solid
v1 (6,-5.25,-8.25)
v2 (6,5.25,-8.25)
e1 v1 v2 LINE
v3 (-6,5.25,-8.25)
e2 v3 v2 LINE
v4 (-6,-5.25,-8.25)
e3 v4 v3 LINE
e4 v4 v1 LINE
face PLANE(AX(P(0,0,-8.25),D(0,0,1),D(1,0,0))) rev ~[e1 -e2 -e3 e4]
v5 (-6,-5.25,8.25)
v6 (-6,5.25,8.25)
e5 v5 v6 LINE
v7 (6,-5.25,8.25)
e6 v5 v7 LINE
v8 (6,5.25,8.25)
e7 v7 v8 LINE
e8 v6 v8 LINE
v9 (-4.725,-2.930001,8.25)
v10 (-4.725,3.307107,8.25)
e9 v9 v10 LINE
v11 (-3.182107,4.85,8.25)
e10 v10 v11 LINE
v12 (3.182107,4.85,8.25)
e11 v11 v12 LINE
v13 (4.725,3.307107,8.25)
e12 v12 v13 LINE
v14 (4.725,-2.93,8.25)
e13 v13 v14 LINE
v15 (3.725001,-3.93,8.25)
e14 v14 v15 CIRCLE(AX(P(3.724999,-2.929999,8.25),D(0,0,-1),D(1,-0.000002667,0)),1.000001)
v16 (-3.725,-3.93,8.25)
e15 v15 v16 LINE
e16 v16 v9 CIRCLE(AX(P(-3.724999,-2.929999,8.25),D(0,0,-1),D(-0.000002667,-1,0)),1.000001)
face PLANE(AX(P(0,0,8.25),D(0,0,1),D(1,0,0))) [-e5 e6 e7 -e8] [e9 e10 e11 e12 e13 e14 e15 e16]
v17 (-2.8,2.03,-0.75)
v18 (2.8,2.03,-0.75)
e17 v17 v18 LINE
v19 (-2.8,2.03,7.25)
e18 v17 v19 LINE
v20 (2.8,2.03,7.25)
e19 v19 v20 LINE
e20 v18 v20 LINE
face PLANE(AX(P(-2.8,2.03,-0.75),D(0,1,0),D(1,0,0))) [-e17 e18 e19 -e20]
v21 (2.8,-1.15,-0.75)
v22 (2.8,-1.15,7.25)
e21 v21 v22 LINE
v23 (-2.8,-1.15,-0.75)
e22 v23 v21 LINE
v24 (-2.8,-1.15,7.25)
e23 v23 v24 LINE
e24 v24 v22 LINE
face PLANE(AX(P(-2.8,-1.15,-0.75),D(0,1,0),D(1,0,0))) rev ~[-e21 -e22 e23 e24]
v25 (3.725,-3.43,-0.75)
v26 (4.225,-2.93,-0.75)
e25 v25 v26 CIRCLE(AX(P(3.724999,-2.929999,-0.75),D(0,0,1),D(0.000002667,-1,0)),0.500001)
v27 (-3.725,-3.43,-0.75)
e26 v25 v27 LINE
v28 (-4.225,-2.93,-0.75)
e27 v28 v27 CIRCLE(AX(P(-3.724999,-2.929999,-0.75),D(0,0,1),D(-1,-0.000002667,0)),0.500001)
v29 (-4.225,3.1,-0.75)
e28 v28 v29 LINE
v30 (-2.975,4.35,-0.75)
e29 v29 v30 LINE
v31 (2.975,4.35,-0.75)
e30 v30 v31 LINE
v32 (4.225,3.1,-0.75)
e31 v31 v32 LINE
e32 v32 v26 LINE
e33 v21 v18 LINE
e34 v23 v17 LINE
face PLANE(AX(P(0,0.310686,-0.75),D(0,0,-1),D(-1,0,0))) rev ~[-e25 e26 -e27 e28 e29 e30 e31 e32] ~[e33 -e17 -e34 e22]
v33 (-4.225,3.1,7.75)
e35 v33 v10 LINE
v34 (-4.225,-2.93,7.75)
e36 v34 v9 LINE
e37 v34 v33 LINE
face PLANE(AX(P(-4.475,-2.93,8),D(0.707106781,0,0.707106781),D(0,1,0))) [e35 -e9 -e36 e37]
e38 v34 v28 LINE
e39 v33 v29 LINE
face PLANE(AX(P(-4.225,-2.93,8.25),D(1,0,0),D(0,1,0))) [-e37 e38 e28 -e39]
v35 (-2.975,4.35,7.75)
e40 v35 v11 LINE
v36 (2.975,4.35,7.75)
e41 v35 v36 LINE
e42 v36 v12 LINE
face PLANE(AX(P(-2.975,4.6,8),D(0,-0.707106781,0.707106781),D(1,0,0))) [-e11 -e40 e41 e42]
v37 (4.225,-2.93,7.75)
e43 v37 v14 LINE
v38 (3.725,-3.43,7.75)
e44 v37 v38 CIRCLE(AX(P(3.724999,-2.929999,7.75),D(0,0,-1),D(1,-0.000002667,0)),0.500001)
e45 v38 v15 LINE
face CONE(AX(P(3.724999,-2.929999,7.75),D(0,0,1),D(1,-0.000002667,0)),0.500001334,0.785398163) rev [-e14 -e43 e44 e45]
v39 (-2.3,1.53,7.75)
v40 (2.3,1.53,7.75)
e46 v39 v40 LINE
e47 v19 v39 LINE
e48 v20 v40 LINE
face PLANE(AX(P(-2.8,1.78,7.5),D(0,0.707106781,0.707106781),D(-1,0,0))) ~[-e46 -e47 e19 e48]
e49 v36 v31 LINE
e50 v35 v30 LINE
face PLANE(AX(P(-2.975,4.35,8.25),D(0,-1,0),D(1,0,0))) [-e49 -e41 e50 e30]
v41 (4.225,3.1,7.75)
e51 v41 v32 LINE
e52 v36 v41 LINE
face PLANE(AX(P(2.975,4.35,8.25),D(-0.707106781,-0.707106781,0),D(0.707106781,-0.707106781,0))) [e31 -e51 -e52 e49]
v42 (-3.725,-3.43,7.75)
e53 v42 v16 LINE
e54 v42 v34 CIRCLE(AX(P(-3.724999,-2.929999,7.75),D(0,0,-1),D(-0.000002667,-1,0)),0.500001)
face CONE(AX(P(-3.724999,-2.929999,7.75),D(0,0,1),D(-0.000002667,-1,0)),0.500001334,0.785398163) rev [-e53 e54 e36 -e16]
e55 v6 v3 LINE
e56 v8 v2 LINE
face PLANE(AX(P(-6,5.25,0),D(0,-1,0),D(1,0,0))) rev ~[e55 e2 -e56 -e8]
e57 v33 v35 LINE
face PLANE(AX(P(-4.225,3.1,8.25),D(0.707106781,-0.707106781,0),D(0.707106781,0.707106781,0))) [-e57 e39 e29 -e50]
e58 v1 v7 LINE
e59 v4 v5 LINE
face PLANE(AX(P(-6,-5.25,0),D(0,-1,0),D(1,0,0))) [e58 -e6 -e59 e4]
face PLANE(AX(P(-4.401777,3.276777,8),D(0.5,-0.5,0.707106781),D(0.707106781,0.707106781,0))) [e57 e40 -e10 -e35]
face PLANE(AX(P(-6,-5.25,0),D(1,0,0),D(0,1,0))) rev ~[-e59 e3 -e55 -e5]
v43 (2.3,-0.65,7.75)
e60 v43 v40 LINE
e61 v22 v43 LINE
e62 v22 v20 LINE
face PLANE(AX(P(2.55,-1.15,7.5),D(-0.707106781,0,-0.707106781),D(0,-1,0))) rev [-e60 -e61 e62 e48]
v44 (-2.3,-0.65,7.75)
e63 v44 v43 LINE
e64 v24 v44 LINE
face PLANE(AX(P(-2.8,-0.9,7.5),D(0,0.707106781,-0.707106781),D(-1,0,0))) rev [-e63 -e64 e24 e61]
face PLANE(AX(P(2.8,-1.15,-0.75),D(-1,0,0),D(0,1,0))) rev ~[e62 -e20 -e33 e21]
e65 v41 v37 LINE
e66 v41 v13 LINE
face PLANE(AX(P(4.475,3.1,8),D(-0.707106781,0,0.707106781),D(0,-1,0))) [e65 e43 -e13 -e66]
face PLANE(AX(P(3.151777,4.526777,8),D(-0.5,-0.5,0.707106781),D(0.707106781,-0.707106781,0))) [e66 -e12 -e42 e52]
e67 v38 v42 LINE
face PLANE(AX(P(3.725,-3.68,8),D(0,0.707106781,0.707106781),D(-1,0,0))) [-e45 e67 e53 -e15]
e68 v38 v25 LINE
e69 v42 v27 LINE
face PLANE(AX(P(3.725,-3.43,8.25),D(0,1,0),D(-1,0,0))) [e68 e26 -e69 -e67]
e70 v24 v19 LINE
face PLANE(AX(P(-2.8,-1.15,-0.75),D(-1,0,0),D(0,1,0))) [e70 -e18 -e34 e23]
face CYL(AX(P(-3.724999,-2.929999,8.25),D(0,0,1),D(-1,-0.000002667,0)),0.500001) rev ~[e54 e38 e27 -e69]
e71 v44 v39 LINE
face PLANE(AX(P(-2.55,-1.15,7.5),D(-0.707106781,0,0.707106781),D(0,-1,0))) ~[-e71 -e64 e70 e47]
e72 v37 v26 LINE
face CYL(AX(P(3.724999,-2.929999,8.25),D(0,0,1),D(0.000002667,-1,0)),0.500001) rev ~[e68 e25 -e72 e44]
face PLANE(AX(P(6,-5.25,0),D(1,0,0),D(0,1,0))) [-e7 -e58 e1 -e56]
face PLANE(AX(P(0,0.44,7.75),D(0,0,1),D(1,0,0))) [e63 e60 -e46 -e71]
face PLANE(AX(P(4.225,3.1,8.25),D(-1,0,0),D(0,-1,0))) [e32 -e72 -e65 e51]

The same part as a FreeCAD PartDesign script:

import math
import FreeCAD as App
import Part
import Sketcher


def edges_at(feature, points):
    """Names of the edges that pass closest to the given points."""
    edges = feature.Shape.Edges
    near = lambda p: min(range(len(edges)), key=lambda i: edges[i].distToShape(Part.Vertex(*p))[0])
    return sorted({f"Edge{near(p) + 1}" for p in points})

doc = App.newDocument("Part")
params = doc.addObject("Spreadsheet::Sheet", "Params")
for row, (alias, value) in enumerate([
    ("sketch1_width", "12 mm"),
    ("sketch1_height", "10.5 mm"),
    ("pad1_length", "16.5 mm"),
    ("sketch2_radius", "0.500001 mm"),
    ("sketch2_width", "7.45 mm"),
    ("sketch2_width2", "5.95 mm"),
    ("sketch2_height", "6.03 mm"),
    ("pocket1_length", "9 mm"),
    ("sketch3_width", "5.6 mm"),
    ("sketch3_height", "3.18 mm"),
    ("pad2_length", "8.5 mm"),
    ("chamfer_size", "0.5 mm"),
    ("chamfer2_size", "0.5 mm"),
], start=1):
    params.set(f"A{row}", alias)
    params.set(f"B{row}", "=" + value)
    params.setAlias(f"B{row}", alias)

body = doc.addObject("PartDesign::Body", "Body")

sketch1 = body.newObject("Sketcher::SketchObject", "Sketch")
sketch1.AttachmentSupport = (doc.getObject("XY_Plane"), [""])
sketch1.MapMode = "FlatFace"
sketch1.addGeometry(Part.LineSegment(App.Vector(-6, 5, 0), App.Vector(-6, -5, 0)), False)
sketch1.addGeometry(Part.LineSegment(App.Vector(-6, -5, 0), App.Vector(6, -5, 0)), False)
sketch1.addGeometry(Part.LineSegment(App.Vector(6, -5, 0), App.Vector(6, 5, 0)), False)
sketch1.addGeometry(Part.LineSegment(App.Vector(6, 5, 0), App.Vector(-6, 5, 0)), False)
sketch1.addConstraint(Sketcher.Constraint("Coincident", 0, 2, 1, 1))
sketch1.addConstraint(Sketcher.Constraint("Coincident", 1, 2, 2, 1))
sketch1.addConstraint(Sketcher.Constraint("Coincident", 2, 2, 3, 1))
sketch1.addConstraint(Sketcher.Constraint("Coincident", 3, 2, 0, 1))
sketch1.addConstraint(Sketcher.Constraint("Vertical", 0))
sketch1.addConstraint(Sketcher.Constraint("Horizontal", 1))
sketch1.addConstraint(Sketcher.Constraint("Vertical", 2))
sketch1.addConstraint(Sketcher.Constraint("Horizontal", 3))
sketch1.addConstraint(Sketcher.Constraint("Symmetric", 0, 2, 2, 2, -1, 1))
sketch1.addConstraint(Sketcher.Constraint("DistanceX", 1, 1, 1, 2, 12.0))
sketch1.addConstraint(Sketcher.Constraint("DistanceY", 0, 2, 0, 1, 10.5))
sketch1.setExpression("Constraints[9]", "Params.sketch1_width")
sketch1.setExpression("Constraints[10]", "Params.sketch1_height")
pad1 = body.newObject("PartDesign::Pad", "Pad")
pad1.Profile = sketch1
pad1.setExpression("Length", "Params.pad1_length")
pad1.Midplane = True

sketch2 = body.newObject("Sketcher::SketchObject", "Sketch001")
sketch2.AttachmentSupport = (doc.getObject("XY_Plane"), [""])
sketch2.MapMode = "FlatFace"
sketch2.AttachmentOffset = App.Placement(App.Vector(0, 0, 8.25), App.Rotation())
sketch2.addGeometry(Part.LineSegment(App.Vector(-4.2, 3.1, 0), App.Vector(-4.2, -2.9, 0)), False)
sketch2.addGeometry(Part.ArcOfCircle(Part.Circle(App.Vector(-3.7, -2.9, 0), App.Vector(0, 0, 1), 0.5), math.radians(-180), math.radians(-90)), False)
sketch2.addGeometry(Part.LineSegment(App.Vector(-3.7, -3.4, 0), App.Vector(3.7, -3.4, 0)), False)
sketch2.addGeometry(Part.ArcOfCircle(Part.Circle(App.Vector(3.7, -2.9, 0), App.Vector(0, 0, 1), 0.5), math.radians(-90), math.radians(0)), False)
sketch2.addGeometry(Part.LineSegment(App.Vector(4.2, -2.9, 0), App.Vector(4.2, 3.1, 0)), False)
sketch2.addGeometry(Part.LineSegment(App.Vector(4.2, 3.1, 0), App.Vector(3, 4.3, 0)), False)
sketch2.addGeometry(Part.LineSegment(App.Vector(3, 4.3, 0), App.Vector(-3, 4.3, 0)), False)
sketch2.addGeometry(Part.LineSegment(App.Vector(-3, 4.3, 0), App.Vector(-4.2, 3.1, 0)), False)
sketch2.addConstraint(Sketcher.Constraint("Coincident", 0, 2, 1, 1))
sketch2.addConstraint(Sketcher.Constraint("Coincident", 1, 2, 2, 1))
sketch2.addConstraint(Sketcher.Constraint("Coincident", 2, 2, 3, 1))
sketch2.addConstraint(Sketcher.Constraint("Coincident", 3, 2, 4, 1))
sketch2.addConstraint(Sketcher.Constraint("Coincident", 4, 2, 5, 1))
sketch2.addConstraint(Sketcher.Constraint("Coincident", 5, 2, 6, 1))
sketch2.addConstraint(Sketcher.Constraint("Coincident", 6, 2, 7, 1))
sketch2.addConstraint(Sketcher.Constraint("Coincident", 7, 2, 0, 1))
sketch2.addConstraint(Sketcher.Constraint("Vertical", 0))
sketch2.addConstraint(Sketcher.Constraint("Horizontal", 2))
sketch2.addConstraint(Sketcher.Constraint("Vertical", 4))
sketch2.addConstraint(Sketcher.Constraint("Horizontal", 6))
sketch2.addConstraint(Sketcher.Constraint("Equal", 1, 3))
sketch2.addConstraint(Sketcher.Constraint("Symmetric", 0, 2, 3, 2, -2))
sketch2.addConstraint(Sketcher.Constraint("Perpendicular", 5, 7))
sketch2.addConstraint(Sketcher.Constraint("Horizontal", 3, 3, 0, 2))
sketch2.addConstraint(Sketcher.Constraint("Horizontal", 4, 2, 7, 2))
sketch2.addConstraint(Sketcher.Constraint("Vertical", 3, 3, 2, 2))
sketch2.addConstraint(Sketcher.Constraint("Equal", 5, 7))
sketch2.addConstraint(Sketcher.Constraint("Radius", 1, 0.500001))
sketch2.addConstraint(Sketcher.Constraint("DistanceX", 2, 1, 2, 2, 7.45))
sketch2.addConstraint(Sketcher.Constraint("DistanceX", 6, 2, 6, 1, 5.95))
sketch2.addConstraint(Sketcher.Constraint("DistanceY", 0, 2, 0, 1, 6.03))
sketch2.addConstraint(Sketcher.Constraint("DistanceY", -1, 1, 4, 2, 3.1))
sketch2.addConstraint(Sketcher.Constraint("DistanceX", 0, 2, 1, 2, 0.5))
sketch2.setExpression("Constraints[19]", "Params.sketch2_radius")
sketch2.setExpression("Constraints[20]", "Params.sketch2_width")
sketch2.setExpression("Constraints[21]", "Params.sketch2_width2")
sketch2.setExpression("Constraints[22]", "Params.sketch2_height")
pocket1 = body.newObject("PartDesign::Pocket", "Pocket")
pocket1.Profile = sketch2
pocket1.setExpression("Length", "Params.pocket1_length")

sketch3 = body.newObject("Sketcher::SketchObject", "Sketch002")
sketch3.AttachmentSupport = (doc.getObject("XY_Plane"), [""])
sketch3.MapMode = "FlatFace"
sketch3.AttachmentOffset = App.Placement(App.Vector(0, 0, -0.75), App.Rotation())
sketch3.addGeometry(Part.LineSegment(App.Vector(-2.8, 2, 0), App.Vector(-2.8, -1.1, 0)), False)
sketch3.addGeometry(Part.LineSegment(App.Vector(-2.8, -1.1, 0), App.Vector(2.8, -1.1, 0)), False)
sketch3.addGeometry(Part.LineSegment(App.Vector(2.8, -1.1, 0), App.Vector(2.8, 2, 0)), False)
sketch3.addGeometry(Part.LineSegment(App.Vector(2.8, 2, 0), App.Vector(-2.8, 2, 0)), False)
sketch3.addConstraint(Sketcher.Constraint("Coincident", 0, 2, 1, 1))
sketch3.addConstraint(Sketcher.Constraint("Coincident", 1, 2, 2, 1))
sketch3.addConstraint(Sketcher.Constraint("Coincident", 2, 2, 3, 1))
sketch3.addConstraint(Sketcher.Constraint("Coincident", 3, 2, 0, 1))
sketch3.addConstraint(Sketcher.Constraint("Vertical", 0))
sketch3.addConstraint(Sketcher.Constraint("Horizontal", 1))
sketch3.addConstraint(Sketcher.Constraint("Vertical", 2))
sketch3.addConstraint(Sketcher.Constraint("Horizontal", 3))
sketch3.addConstraint(Sketcher.Constraint("DistanceX", 1, 1, 1, 2, 5.6))
sketch3.addConstraint(Sketcher.Constraint("DistanceY", 0, 2, 0, 1, 3.18))
sketch3.addConstraint(Sketcher.Constraint("DistanceX", 0, 2, -1, 1, 2.8))
sketch3.addConstraint(Sketcher.Constraint("DistanceY", 0, 2, -1, 1, 1.15))
sketch3.setExpression("Constraints[8]", "Params.sketch3_width")
sketch3.setExpression("Constraints[9]", "Params.sketch3_height")
pad2 = body.newObject("PartDesign::Pad", "Pad001")
pad2.Profile = sketch3
pad2.setExpression("Length", "Params.pad2_length")
doc.recompute()

chamfer = body.newObject("PartDesign::Chamfer", "Chamfer")
chamfer.Base = (pad2, edges_at(pad2, [
    (2.8, 0.44, 7.75),
    (0, 2.03, 7.75),
    (-2.8, 0.44, 7.75),
    (0, -1.15, 7.75),
]))
chamfer.setExpression("Size", "Params.chamfer_size")
doc.recompute()

chamfer2 = body.newObject("PartDesign::Chamfer", "Chamfer001")
chamfer2.Base = (chamfer, edges_at(chamfer, [
    (0, -3.43, 8.25),
    (4.079, -3.284, 8.25),
    (-4.079, -3.284, 8.25),
    (4.225, 0.085, 8.25),
    (-4.225, 0.085, 8.25),
    (3.6, 3.725, 8.25),
    (-3.6, 3.725, 8.25),
    (0, 4.35, 8.25),
]))
chamfer2.setExpression("Size", "Params.chamfer2_size")

doc.recompute()
